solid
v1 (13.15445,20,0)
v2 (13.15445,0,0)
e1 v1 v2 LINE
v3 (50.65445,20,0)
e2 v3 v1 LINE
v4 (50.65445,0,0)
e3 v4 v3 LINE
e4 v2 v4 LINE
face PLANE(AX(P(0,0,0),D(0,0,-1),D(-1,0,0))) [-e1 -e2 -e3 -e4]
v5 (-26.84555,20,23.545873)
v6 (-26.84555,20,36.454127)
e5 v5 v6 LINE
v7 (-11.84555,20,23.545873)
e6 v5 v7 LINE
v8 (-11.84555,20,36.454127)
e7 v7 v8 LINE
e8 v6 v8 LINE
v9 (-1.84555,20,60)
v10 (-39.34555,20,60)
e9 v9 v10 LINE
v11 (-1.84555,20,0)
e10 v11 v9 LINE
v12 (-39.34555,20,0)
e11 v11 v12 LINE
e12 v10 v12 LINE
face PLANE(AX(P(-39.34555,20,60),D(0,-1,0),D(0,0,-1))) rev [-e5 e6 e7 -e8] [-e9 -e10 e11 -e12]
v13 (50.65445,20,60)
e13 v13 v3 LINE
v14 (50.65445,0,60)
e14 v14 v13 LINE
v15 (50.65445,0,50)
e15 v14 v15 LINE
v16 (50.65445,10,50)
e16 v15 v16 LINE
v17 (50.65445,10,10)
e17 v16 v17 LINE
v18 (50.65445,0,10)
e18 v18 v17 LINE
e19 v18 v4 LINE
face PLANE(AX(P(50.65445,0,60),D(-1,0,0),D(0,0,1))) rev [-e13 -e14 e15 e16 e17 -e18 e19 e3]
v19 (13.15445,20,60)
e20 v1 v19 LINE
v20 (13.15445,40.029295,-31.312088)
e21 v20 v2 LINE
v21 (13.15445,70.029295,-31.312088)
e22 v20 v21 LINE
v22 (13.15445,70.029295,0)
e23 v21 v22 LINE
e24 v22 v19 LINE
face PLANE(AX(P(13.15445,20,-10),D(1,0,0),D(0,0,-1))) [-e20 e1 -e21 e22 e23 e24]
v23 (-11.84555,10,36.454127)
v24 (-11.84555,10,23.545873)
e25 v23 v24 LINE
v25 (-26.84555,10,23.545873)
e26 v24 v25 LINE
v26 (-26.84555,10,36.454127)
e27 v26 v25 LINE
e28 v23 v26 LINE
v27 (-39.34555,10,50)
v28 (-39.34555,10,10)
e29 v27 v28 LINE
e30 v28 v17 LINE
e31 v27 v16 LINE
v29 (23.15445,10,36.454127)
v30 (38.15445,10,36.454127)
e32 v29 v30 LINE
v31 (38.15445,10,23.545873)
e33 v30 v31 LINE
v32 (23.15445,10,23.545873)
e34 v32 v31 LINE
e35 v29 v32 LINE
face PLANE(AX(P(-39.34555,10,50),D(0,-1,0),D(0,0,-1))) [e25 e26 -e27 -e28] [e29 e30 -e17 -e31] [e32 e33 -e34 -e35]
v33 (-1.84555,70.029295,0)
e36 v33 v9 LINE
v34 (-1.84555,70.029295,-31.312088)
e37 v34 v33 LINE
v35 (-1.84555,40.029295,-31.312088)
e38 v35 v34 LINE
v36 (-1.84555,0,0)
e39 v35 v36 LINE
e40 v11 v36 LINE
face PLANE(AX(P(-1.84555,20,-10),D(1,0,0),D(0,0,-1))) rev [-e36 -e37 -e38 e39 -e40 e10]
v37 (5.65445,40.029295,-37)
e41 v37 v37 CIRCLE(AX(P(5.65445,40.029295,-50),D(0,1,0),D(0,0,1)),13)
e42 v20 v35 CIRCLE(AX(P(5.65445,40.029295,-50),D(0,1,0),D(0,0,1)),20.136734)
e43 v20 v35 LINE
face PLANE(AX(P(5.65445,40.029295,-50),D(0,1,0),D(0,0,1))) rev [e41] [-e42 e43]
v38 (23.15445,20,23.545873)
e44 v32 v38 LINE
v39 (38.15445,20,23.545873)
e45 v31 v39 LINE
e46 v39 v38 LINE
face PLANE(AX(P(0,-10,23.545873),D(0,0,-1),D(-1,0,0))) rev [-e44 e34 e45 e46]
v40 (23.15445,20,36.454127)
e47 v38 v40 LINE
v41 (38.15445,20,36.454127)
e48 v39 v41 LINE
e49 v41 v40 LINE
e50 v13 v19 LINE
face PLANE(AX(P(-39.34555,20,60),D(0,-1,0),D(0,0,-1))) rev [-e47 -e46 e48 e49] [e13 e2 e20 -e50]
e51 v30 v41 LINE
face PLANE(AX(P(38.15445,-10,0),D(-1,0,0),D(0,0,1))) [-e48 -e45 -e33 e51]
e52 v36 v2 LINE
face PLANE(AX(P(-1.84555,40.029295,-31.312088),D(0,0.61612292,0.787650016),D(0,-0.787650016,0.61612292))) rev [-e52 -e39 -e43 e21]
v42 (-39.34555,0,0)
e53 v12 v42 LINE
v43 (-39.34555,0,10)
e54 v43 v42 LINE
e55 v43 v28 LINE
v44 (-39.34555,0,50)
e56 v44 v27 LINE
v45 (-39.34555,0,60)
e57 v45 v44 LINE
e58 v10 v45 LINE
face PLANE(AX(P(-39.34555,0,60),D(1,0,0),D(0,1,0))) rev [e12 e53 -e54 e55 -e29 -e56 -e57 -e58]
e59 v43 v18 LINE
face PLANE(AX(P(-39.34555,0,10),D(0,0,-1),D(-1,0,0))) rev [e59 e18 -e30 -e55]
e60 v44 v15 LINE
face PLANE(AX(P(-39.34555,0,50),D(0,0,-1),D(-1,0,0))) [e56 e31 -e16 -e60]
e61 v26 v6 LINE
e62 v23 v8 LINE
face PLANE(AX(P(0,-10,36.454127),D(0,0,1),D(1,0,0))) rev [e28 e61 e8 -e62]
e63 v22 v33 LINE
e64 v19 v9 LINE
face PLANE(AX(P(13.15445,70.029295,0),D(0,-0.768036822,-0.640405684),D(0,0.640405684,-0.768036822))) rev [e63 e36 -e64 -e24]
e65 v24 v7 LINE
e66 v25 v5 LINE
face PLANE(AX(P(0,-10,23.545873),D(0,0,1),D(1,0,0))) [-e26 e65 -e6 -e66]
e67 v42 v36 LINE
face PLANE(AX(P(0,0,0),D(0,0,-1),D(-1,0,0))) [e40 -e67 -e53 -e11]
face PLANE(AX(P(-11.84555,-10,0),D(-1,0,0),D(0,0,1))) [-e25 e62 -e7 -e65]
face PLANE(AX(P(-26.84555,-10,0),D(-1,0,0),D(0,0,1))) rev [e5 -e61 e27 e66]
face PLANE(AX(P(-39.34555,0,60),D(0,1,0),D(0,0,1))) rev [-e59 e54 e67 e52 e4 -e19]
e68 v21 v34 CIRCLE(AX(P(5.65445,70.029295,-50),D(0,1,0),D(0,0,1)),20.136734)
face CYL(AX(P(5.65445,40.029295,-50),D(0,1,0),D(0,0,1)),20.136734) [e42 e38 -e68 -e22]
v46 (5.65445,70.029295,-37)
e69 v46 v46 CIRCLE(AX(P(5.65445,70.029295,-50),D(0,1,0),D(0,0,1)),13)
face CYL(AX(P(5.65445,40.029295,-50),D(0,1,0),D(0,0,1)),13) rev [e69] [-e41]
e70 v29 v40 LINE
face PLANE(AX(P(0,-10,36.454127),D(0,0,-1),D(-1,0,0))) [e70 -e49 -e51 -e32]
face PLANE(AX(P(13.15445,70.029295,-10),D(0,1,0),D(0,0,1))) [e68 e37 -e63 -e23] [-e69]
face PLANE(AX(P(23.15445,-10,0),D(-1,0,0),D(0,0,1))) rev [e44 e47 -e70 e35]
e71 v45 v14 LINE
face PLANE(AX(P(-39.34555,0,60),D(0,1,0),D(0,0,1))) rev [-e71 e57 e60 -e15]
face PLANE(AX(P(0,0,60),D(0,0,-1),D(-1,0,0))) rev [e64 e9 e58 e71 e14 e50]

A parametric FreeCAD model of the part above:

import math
import FreeCAD as App
import Part
import Sketcher

V = App.Vector


def add_polygon(sketch, points):
    """Adds a closed chain of lines whose ends are joined by coincident constraints."""
    first, n = sketch.GeometryCount, len(points)
    for a, b in zip(points, points[1:] + points[:1]):
        sketch.addGeometry(Part.LineSegment(App.Vector(*a, 0), App.Vector(*b, 0)), False)
    for i in range(n):
        sketch.addConstraint(Sketcher.Constraint("Coincident", first + i, 2, first + (i + 1) % n, 1))

doc = App.newDocument("Part")
params = doc.addObject("Spreadsheet::Sheet", "Params")
for row, (alias, value) in enumerate([
    ("sketch1_width", "90 mm"),
    ("sketch1_height", "20 mm"),
    ("pad1_length", "60 mm"),
    ("sketch2_width", "10 mm"),
    ("sketch2_height", "40 mm"),
    ("pocket1_length", "90 mm"),
    ("sketch3_width", "15 mm"),
    ("pocket2_length", "30 mm"),
    ("sketch4_width", "15 mm"),
    ("pad2_length", "10 mm"),
    ("pad2_length2", "60 mm"),
    ("sketch5_height", "60 mm"),
    ("pocket3_length", "15 mm"),
    ("sketch6_diameter", "26 mm"),
    ("sketch6_width", "15 mm"),
    ("pad3_length", "30 mm"),
    ("sketch7_width", "15 mm"),
    ("pad4_length", "47 mm"),
    ("pocket4_length", "15 mm"),
], start=1):
    params.set(f"A{row}", alias)
    params.set(f"B{row}", "=" + value)
    params.setAlias(f"B{row}", alias)

body = doc.addObject("PartDesign::Body", "Body")

sketch1 = body.newObject("Sketcher::SketchObject", "Sketch")
sketch1.AttachmentSupport = (doc.getObject("XY_Plane"), [""])
sketch1.MapMode = "FlatFace"
add_polygon(sketch1, [(-39, 20), (-39, 0), (51, 0), (51, 20)])
sketch1.addConstraint([
    Sketcher.Constraint("Vertical", 0),
    Sketcher.Constraint("Horizontal", 1),
    Sketcher.Constraint("Vertical", 2),
    Sketcher.Constraint("Horizontal", 3),
    Sketcher.Constraint("PointOnObject", 0, 2, -1),
    Sketcher.Constraint("DistanceX", 1, 1, 1, 2, 90.0),
    Sketcher.Constraint("DistanceY", 0, 2, 0, 1, 20.0),
    Sketcher.Constraint("DistanceX", 0, 2, -1, 1, 39.34555),
])
sketch1.setExpression("Constraints[9]", "Params.sketch1_width")
sketch1.setExpression("Constraints[10]", "Params.sketch1_height")
pad1 = body.newObject("PartDesign::Pad", "Pad")
pad1.Profile = sketch1
pad1.setExpression("Length", "Params.pad1_length")

sketch2 = body.newObject("Sketcher::SketchObject", "Sketch001")
sketch2.AttachmentSupport = (doc.getObject("YZ_Plane"), [""])
sketch2.MapMode = "FlatFace"
sketch2.AttachmentOffset = App.Placement(V(0, 0, 50.65445), App.Rotation())
add_polygon(sketch2, [(10, 50), (0, 50), (0, 10), (10, 10)])
sketch2.addConstraint([
    Sketcher.Constraint("Horizontal", 0),
    Sketcher.Constraint("Vertical", 1),
    Sketcher.Constraint("Horizontal", 2),
    Sketcher.Constraint("Vertical", 3),
    Sketcher.Constraint("PointOnObject", 0, 2, -2),
    Sketcher.Constraint("DistanceX", 0, 2, 0, 1, 10.0),
    Sketcher.Constraint("DistanceY", 1, 2, 1, 1, 40.0),
    Sketcher.Constraint("DistanceY", -1, 1, 0, 2, 50.0),
])
sketch2.setExpression("Constraints[9]", "Params.sketch2_width")
sketch2.setExpression("Constraints[10]", "Params.sketch2_height")
pocket1 = body.newObject("PartDesign::Pocket", "Pocket")
pocket1.Profile = sketch2
pocket1.setExpression("Length", "Params.pocket1_length")

sketch3 = body.newObject("Sketcher::SketchObject", "Sketch002")
sketch3.AttachmentSupport = (doc.getObject("XZ_Plane"), [""])
sketch3.MapMode = "FlatFace"
sketch3.AttachmentOffset = App.Placement(V(0, 0, -20), App.Rotation())
add_polygon(sketch3, [(-27, 24), (-27, 36), (-12, 36), (-12, 24)])
add_polygon(sketch3, [(23, 24), (23, 36), (38, 36), (38, 24)])
sketch3.addConstraint([
    Sketcher.Constraint("Vertical", 0),
    Sketcher.Constraint("Horizontal", 1),
    Sketcher.Constraint("Vertical", 2),
    Sketcher.Constraint("Horizontal", 3),
    Sketcher.Constraint("Vertical", 4),
    Sketcher.Constraint("Horizontal", 5),
    Sketcher.Constraint("Vertical", 6),
    Sketcher.Constraint("Horizontal", 7),
    Sketcher.Constraint("Horizontal", 1, 2, 4, 2),
    Sketcher.Constraint("Horizontal", 3, 2, 6, 2),
    Sketcher.Constraint("Equal", 3, 5),
    Sketcher.Constraint("DistanceX", 1, 1, 1, 2, 15.0),
    Sketcher.Constraint("DistanceX", 1, 2, 4, 2, 35.0),
    Sketcher.Constraint("DistanceY", 0, 1, 0, 2, 12.908254),
    Sketcher.Constraint("DistanceX", 0, 2, -1, 1, 26.84555),
    Sketcher.Constraint("DistanceY", -1, 1, 0, 2, 36.454127),
])
sketch3.setExpression("Constraints[19]", "Params.sketch3_width")
pocket2 = body.newObject("PartDesign::Pocket", "Pocket001")
pocket2.Profile = sketch3
pocket2.setExpression("Length", "Params.pocket2_length")
pocket2.Reversed = True

sketch4 = body.newObject("Sketcher::SketchObject", "Sketch003")
sketch4.AttachmentSupport = (doc.getObject("XY_Plane"), [""])
sketch4.MapMode = "FlatFace"
add_polygon(sketch4, [(13, 70), (13, 20), (-2, 20), (-2, 70)])
sketch4.addConstraint([
    Sketcher.Constraint("Vertical", 0),
    Sketcher.Constraint("Horizontal", 1),
    Sketcher.Constraint("Vertical", 2),
    Sketcher.Constraint("Horizontal", 3),
    Sketcher.Constraint("DistanceX", 1, 2, 1, 1, 15.0),
    Sketcher.Constraint("DistanceY", -1, 1, 0, 2, 20.0),
    Sketcher.Constraint("DistanceY", 0, 2, 0, 1, 50.029295),
    Sketcher.Constraint("DistanceX", -1, 1, 0, 2, 13.15445),
])
sketch4.setExpression("Constraints[8]", "Params.sketch4_width")
pad2 = body.newObject("PartDesign::Pad", "Pad001")
pad2.Profile = sketch4
pad2.Type = "TwoLengths"
pad2.setExpression("Length", "Params.pad2_length")
pad2.setExpression("Length2", "Params.pad2_length2")
pad2.Reversed = True

sketch5 = body.newObject("Sketcher::SketchObject", "Sketch004")
sketch5.AttachmentSupport = (doc.getObject("YZ_Plane"), [""])
sketch5.MapMode = "FlatFace"
sketch5.AttachmentOffset = App.Placement(V(0, 0, -1.84555), App.Rotation())
add_polygon(sketch5, [(20, 60), (70, 60), (70, 0)])
sketch5.addConstraint([
    Sketcher.Constraint("Horizontal", 0),
    Sketcher.Constraint("Vertical", 1),
    Sketcher.Constraint("PointOnObject", 1, 2, -1),
    Sketcher.Constraint("DistanceY", 1, 2, 1, 1, 60.0),
    Sketcher.Constraint("DistanceX", -1, 1, 2, 2, 20.0),
    Sketcher.Constraint("DistanceX", 0, 1, 0, 2, 50.029295),
])
sketch5.setExpression("Constraints[6]", "Params.sketch5_height")
pocket3 = body.newObject("PartDesign::Pocket", "Pocket002")
pocket3.Profile = sketch5
pocket3.setExpression("Length", "Params.pocket3_length")
pocket3.Reversed = True

sketch6 = body.newObject("Sketcher::SketchObject", "Sketch005")
sketch6.AttachmentSupport = (doc.getObject("XZ_Plane"), [""])
sketch6.MapMode = "FlatFace"
sketch6.AttachmentOffset = App.Placement(V(0, 0, -70.029295), App.Rotation())
sketch6.addGeometry([
    Part.LineSegment(V(-2, -10, 0), V(13, -10, 0)),
    Part.LineSegment(V(13, -10, 0), V(13, -31, 0)),
    Part.ArcOfCircle(Part.Circle(V(6, -50, 0), V(0, 0, 1), 20), math.radians(112), math.radians(428)),
    Part.LineSegment(V(-2, -31, 0), V(-2, -10, 0)),
    Part.Circle(V(6, -50, 0), V(0, 0, 1), 13),
], False)
sketch6.addConstraint([
    Sketcher.Constraint("Coincident", 0, 2, 1, 1),
    Sketcher.Constraint("Coincident", 1, 2, 2, 2),
    Sketcher.Constraint("Coincident", 2, 1, 3, 1),
    Sketcher.Constraint("Coincident", 3, 2, 0, 1),
    Sketcher.Constraint("Horizontal", 0),
    Sketcher.Constraint("Vertical", 1),
    Sketcher.Constraint("Vertical", 3),
    Sketcher.Constraint("Coincident", 4, 3, 2, 3),
    Sketcher.Constraint("Horizontal", 1, 2, 2, 1),
    Sketcher.Constraint("Diameter", 4, 26.0),
    Sketcher.Constraint("DistanceX", 0, 1, 0, 2, 15.0),
    Sketcher.Constraint("DistanceY", 2, 3, -1, 1, 50.0),
    Sketcher.Constraint("DistanceY", 0, 2, -1, 1, 10.0),
    Sketcher.Constraint("Radius", 2, 20.136734),
    Sketcher.Constraint("DistanceX", -1, 1, 2, 3, 5.65445),
])
sketch6.setExpression("Constraints[9]", "Params.sketch6_diameter")
sketch6.setExpression("Constraints[10]", "Params.sketch6_width")
pad3 = body.newObject("PartDesign::Pad", "Pad002")
pad3.Profile = sketch6
pad3.setExpression("Length", "Params.pad3_length")

sketch7 = body.newObject("Sketcher::SketchObject", "Sketch006")
sketch7.AttachmentSupport = (doc.getObject("XZ_Plane"), [""])
sketch7.MapMode = "FlatFace"
add_polygon(sketch7, [(-2, 0), (-2, -31), (13, -31), (13, 0)])
sketch7.addConstraint([
    Sketcher.Constraint("Vertical", 0),
    Sketcher.Constraint("Horizontal", 1),
    Sketcher.Constraint("Vertical", 2),
    Sketcher.Constraint("Horizontal", 3),
    Sketcher.Constraint("PointOnObject", 2, 2, -1),
    Sketcher.Constraint("DistanceX", 1, 1, 1, 2, 15.0),
    Sketcher.Constraint("DistanceY", 0, 2, 0, 1, 31.312088),
    Sketcher.Constraint("DistanceX", 0, 2, -1, 1, 1.84555),
])
sketch7.setExpression("Constraints[9]", "Params.sketch7_width")
pad4 = body.newObject("PartDesign::Pad", "Pad003")
pad4.Profile = sketch7
pad4.setExpression("Length", "Params.pad4_length")
pad4.Reversed = True

sketch8 = body.newObject("Sketcher::SketchObject", "Sketch007")
sketch8.AttachmentSupport = (doc.getObject("YZ_Plane"), [""])
sketch8.MapMode = "FlatFace"
sketch8.AttachmentOffset = App.Placement(V(0, 0, 13.15445), App.Rotation())
add_polygon(sketch8, [(40, -31), (0, 0), (0, -31)])
sketch8.addConstraint([
    Sketcher.Constraint("Vertical", 1),
    Sketcher.Constraint("Horizontal", 2),
    Sketcher.Constraint("Coincident", 0, 2, -1, 1),
    Sketcher.Constraint("Distance", 0, 50.82117),
    Sketcher.Constraint("DistanceX", 2, 1, 2, 2, 40.029295),
])
pocket4 = body.newObject("PartDesign::Pocket", "Pocket003")
pocket4.Profile = sketch8
pocket4.setExpression("Length", "Params.pocket4_length")

doc.recompute()
